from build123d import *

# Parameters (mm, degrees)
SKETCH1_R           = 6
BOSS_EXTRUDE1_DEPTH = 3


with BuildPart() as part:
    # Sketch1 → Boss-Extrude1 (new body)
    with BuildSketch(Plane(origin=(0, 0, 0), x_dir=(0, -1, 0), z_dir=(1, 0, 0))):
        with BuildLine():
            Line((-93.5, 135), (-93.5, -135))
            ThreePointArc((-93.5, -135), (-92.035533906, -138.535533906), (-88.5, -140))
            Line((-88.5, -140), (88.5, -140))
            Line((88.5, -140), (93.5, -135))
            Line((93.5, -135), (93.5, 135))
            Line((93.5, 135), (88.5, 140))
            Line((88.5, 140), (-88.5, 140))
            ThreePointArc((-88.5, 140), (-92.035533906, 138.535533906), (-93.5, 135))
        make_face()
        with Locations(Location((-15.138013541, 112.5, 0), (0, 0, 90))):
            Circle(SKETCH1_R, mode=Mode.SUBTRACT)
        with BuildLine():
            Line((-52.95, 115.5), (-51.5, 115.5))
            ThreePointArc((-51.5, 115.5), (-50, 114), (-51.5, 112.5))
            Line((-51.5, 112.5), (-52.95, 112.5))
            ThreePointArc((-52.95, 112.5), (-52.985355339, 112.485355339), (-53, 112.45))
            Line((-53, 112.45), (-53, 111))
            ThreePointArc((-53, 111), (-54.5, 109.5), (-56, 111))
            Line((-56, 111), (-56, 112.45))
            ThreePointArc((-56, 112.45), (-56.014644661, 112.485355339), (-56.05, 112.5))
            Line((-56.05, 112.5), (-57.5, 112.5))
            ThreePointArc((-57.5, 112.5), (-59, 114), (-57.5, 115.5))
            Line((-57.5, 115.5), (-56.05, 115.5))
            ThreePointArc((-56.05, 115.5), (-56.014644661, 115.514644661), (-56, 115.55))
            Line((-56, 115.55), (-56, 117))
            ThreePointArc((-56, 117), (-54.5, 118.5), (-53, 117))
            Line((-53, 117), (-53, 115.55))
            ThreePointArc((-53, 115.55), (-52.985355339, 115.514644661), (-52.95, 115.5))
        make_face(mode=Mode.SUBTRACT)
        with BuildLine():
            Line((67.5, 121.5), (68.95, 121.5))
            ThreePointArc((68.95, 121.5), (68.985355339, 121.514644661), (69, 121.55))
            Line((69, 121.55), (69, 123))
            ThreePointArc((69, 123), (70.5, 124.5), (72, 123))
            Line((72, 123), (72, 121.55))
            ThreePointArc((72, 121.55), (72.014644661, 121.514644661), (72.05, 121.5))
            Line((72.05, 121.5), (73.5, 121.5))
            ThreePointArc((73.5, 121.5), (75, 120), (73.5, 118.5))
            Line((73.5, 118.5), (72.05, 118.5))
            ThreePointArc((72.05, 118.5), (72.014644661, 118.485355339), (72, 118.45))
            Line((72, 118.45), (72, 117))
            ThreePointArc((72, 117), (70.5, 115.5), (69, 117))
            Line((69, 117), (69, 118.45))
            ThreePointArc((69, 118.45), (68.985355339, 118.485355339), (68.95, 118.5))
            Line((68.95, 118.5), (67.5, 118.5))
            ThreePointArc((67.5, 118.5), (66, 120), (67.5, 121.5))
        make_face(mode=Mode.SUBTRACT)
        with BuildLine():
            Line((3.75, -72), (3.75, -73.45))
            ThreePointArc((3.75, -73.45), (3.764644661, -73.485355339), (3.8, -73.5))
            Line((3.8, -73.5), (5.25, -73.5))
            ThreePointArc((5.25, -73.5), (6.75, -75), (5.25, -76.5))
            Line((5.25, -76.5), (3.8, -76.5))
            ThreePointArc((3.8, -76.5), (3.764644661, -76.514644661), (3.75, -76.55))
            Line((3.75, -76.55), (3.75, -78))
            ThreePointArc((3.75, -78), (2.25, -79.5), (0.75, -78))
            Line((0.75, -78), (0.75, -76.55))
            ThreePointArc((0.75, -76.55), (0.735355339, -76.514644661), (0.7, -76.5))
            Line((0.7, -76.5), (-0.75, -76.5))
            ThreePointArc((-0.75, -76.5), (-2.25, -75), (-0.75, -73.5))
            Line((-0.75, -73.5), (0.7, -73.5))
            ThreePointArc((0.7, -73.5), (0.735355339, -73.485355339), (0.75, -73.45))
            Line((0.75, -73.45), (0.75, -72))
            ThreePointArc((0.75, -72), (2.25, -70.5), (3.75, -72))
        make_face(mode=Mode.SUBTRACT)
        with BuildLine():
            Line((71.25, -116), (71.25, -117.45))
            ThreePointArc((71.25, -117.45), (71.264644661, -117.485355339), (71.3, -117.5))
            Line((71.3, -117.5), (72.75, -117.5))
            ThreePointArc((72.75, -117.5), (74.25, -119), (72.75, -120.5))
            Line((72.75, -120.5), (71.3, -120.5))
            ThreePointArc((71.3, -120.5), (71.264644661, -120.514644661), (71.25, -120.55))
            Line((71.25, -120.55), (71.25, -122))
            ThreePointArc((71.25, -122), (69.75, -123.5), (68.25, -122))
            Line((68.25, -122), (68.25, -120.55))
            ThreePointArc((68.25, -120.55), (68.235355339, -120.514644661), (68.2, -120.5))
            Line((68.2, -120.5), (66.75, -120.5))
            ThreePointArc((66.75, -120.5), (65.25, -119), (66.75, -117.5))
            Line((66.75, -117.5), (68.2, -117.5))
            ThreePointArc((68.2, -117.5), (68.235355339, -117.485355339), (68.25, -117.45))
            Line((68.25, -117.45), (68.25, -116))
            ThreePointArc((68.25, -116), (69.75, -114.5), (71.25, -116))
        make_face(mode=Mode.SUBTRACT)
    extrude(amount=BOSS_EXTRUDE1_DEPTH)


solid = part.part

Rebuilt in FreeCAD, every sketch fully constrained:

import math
import FreeCAD as App
import Part
import Sketcher

V = App.Vector
Q = App.Units.Quantity

doc = App.newDocument("Part")
params = doc.addObject("Spreadsheet::Sheet", "Params")
for row, (alias, value) in enumerate([
    ("sketch1_diameter", "12 mm"),
    ("sketch1_radius", "5 mm"),
    ("sketch1_radius2", "1.5 mm"),
    ("sketch1_width", "177 mm"),
    ("sketch1_height", "270 mm"),
    ("pad1_length", "3 mm"),
], start=1):
    params.set(f"A{row}", alias)
    params.set(f"B{row}", "=" + value)
    params.setAlias(f"B{row}", alias)

body = doc.addObject("PartDesign::Body", "Body")

# Sketch on YZ plane
sketch1 = body.newObject("Sketcher::SketchObject", "Sketch")
sketch1.AttachmentSupport = (doc.getObject("YZ_Plane"), [""])
sketch1.MapMode = "FlatFace"
sketch1.addGeometry([
    Part.LineSegment(V(93.5, -135, 0), V(93.5, 135, 0)),  # 0
    Part.ArcOfCircle(Part.Circle(V(88.5, 135, 0), V(0, 0, 1), 5), math.radians(0), math.radians(90)),  # 1
    Part.LineSegment(V(88.5, 140, 0), V(-88.5, 140, 0)),  # 2
    Part.LineSegment(V(-88.5, 140, 0), V(-93.5, 135, 0)),  # 3
    Part.LineSegment(V(-93.5, 135, 0), V(-93.5, -135, 0)),  # 4
    Part.LineSegment(V(-93.5, -135, 0), V(-88.5, -140, 0)),  # 5
    Part.LineSegment(V(-88.5, -140, 0), V(88.5, -140, 0)),  # 6
    Part.ArcOfCircle(Part.Circle(V(88.5, -135, 0), V(0, 0, 1), 5), math.radians(-90), math.radians(0)),  # 7
    Part.ArcOfCircle(Part.Circle(V(-2.25, 72, 0), V(0, 0, 1), 1.5), math.radians(180), math.radians(360)),  # 8
    Part.LineSegment(V(-3.75, 72, 0), V(-3.75, 73.45, 0)),  # 9
    Part.ArcOfCircle(Part.Circle(V(-3.8, 73.45, 0), V(0, 0, 1), 0.05), math.radians(0), math.radians(90)),  # 10
    Part.LineSegment(V(-3.8, 73.5, 0), V(-5.25, 73.5, 0)),  # 11
    Part.ArcOfCircle(Part.Circle(V(-5.25, 75, 0), V(0, 0, 1), 1.5), math.radians(90), math.radians(270)),  # 12
    Part.LineSegment(V(-5.25, 76.5, 0), V(-3.8, 76.5, 0)),  # 13
    Part.ArcOfCircle(Part.Circle(V(-3.8, 76.55, 0), V(0, 0, 1), 0.05), math.radians(-90), math.radians(0)),  # 14
    Part.LineSegment(V(-3.75, 76.55, 0), V(-3.75, 78, 0)),  # 15
    Part.ArcOfCircle(Part.Circle(V(-2.25, 78, 0), V(0, 0, 1), 1.5), math.radians(0), math.radians(180)),  # 16
    Part.LineSegment(V(-0.75, 78, 0), V(-0.75, 76.55, 0)),  # 17
    Part.ArcOfCircle(Part.Circle(V(-0.7, 76.55, 0), V(0, 0, 1), 0.05), math.radians(180), math.radians(270)),  # 18
    Part.LineSegment(V(-0.7, 76.5, 0), V(0.75, 76.5, 0)),  # 19
    Part.ArcOfCircle(Part.Circle(V(0.75, 75, 0), V(0, 0, 1), 1.5), math.radians(-90), math.radians(90)),  # 20
    Part.LineSegment(V(0.75, 73.5, 0), V(-0.7, 73.5, 0)),  # 21
    Part.ArcOfCircle(Part.Circle(V(-0.7, 73.45, 0), V(0, 0, 1), 0.05), math.radians(90), math.radians(180)),  # 22
    Part.LineSegment(V(-0.75, 73.45, 0), V(-0.75, 72, 0)),  # 23
    Part.ArcOfCircle(Part.Circle(V(-69.75, 116, 0), V(0, 0, 1), 1.5), math.radians(180), math.radians(360)),  # 24
    Part.LineSegment(V(-71.25, 116, 0), V(-71.25, 117.45, 0)),  # 25
    Part.ArcOfCircle(Part.Circle(V(-71.3, 117.45, 0), V(0, 0, 1), 0.05), math.radians(0), math.radians(90)),  # 26
    Part.LineSegment(V(-71.3, 117.5, 0), V(-72.75, 117.5, 0)),  # 27
    Part.ArcOfCircle(Part.Circle(V(-72.75, 119, 0), V(0, 0, 1), 1.5), math.radians(90), math.radians(270)),  # 28
    Part.LineSegment(V(-72.75, 120.5, 0), V(-71.3, 120.5, 0)),  # 29
    Part.ArcOfCircle(Part.Circle(V(-71.3, 120.55, 0), V(0, 0, 1), 0.05), math.radians(-90), math.radians(0)),  # 30
    Part.LineSegment(V(-71.25, 120.55, 0), V(-71.25, 122, 0)),  # 31
    Part.ArcOfCircle(Part.Circle(V(-69.75, 122, 0), V(0, 0, 1), 1.5), math.radians(0), math.radians(180)),  # 32
    Part.LineSegment(V(-68.25, 122, 0), V(-68.25, 120.55, 0)),  # 33
    Part.ArcOfCircle(Part.Circle(V(-68.2, 120.55, 0), V(0, 0, 1), 0.05), math.radians(180), math.radians(270)),  # 34
    Part.LineSegment(V(-68.2, 120.5, 0), V(-66.75, 120.5, 0)),  # 35
    Part.ArcOfCircle(Part.Circle(V(-66.75, 119, 0), V(0, 0, 1), 1.5), math.radians(-90), math.radians(90)),  # 36
    Part.LineSegment(V(-66.75, 117.5, 0), V(-68.2, 117.5, 0)),  # 37
    Part.ArcOfCircle(Part.Circle(V(-68.2, 117.45, 0), V(0, 0, 1), 0.05), math.radians(90), math.radians(180)),  # 38
    Part.LineSegment(V(-68.25, 117.45, 0), V(-68.25, 116, 0)),  # 39
    Part.ArcOfCircle(Part.Circle(V(52.95, -115.55, 0), V(0, 0, 1), 0.05), math.radians(0), math.radians(90)),  # 40
    Part.LineSegment(V(52.95, -115.5, 0), V(51.5, -115.5, 0)),  # 41
    Part.ArcOfCircle(Part.Circle(V(51.5, -114, 0), V(0, 0, 1), 1.5), math.radians(90), math.radians(270)),  # 42
    Part.LineSegment(V(51.5, -112.5, 0), V(52.95, -112.5, 0)),  # 43
    Part.ArcOfCircle(Part.Circle(V(52.95, -112.45, 0), V(0, 0, 1), 0.05), math.radians(-90), math.radians(0)),  # 44
    Part.LineSegment(V(53, -112.45, 0), V(53, -111, 0)),  # 45
    Part.ArcOfCircle(Part.Circle(V(54.5, -111, 0), V(0, 0, 1), 1.5), math.radians(0), math.radians(180)),  # 46
    Part.LineSegment(V(56, -111, 0), V(56, -112.45, 0)),  # 47
    Part.ArcOfCircle(Part.Circle(V(56.05, -112.45, 0), V(0, 0, 1), 0.05), math.radians(180), math.radians(270)),  # 48
    Part.LineSegment(V(56.05, -112.5, 0), V(57.5, -112.5, 0)),  # 49
    Part.ArcOfCircle(Part.Circle(V(57.5, -114, 0), V(0, 0, 1), 1.5), math.radians(-90), math.radians(90)),  # 50
    Part.LineSegment(V(57.5, -115.5, 0), V(56.05, -115.5, 0)),  # 51
    Part.ArcOfCircle(Part.Circle(V(56.05, -115.55, 0), V(0, 0, 1), 0.05), math.radians(90), math.radians(180)),  # 52
    Part.LineSegment(V(56, -115.55, 0), V(56, -117, 0)),  # 53
    Part.ArcOfCircle(Part.Circle(V(54.5, -117, 0), V(0, 0, 1), 1.5), math.radians(180), math.radians(360)),  # 54
    Part.LineSegment(V(53, -117, 0), V(53, -115.55, 0)),  # 55
    Part.Circle(V(15.14, -112.5, 0), V(0, 0, 1), 6),  # 56
    Part.ArcOfCircle(Part.Circle(V(-67.5, -120, 0), V(0, 0, 1), 1.5), math.radians(-90), math.radians(90)),  # 57
    Part.LineSegment(V(-67.5, -121.5, 0), V(-68.95, -121.5, 0)),  # 58
    Part.ArcOfCircle(Part.Circle(V(-68.95, -121.55, 0), V(0, 0, 1), 0.05), math.radians(90), math.radians(180)),  # 59
    Part.LineSegment(V(-69, -121.55, 0), V(-69, -123, 0)),  # 60
    Part.ArcOfCircle(Part.Circle(V(-70.5, -123, 0), V(0, 0, 1), 1.5), math.radians(180), math.radians(360)),  # 61
    Part.LineSegment(V(-72, -123, 0), V(-72, -121.55, 0)),  # 62
    Part.ArcOfCircle(Part.Circle(V(-72.05, -121.55, 0), V(0, 0, 1), 0.05), math.radians(0), math.radians(90)),  # 63
    Part.LineSegment(V(-72.05, -121.5, 0), V(-73.5, -121.5, 0)),  # 64
    Part.ArcOfCircle(Part.Circle(V(-73.5, -120, 0), V(0, 0, 1), 1.5), math.radians(90), math.radians(270)),  # 65
    Part.LineSegment(V(-73.5, -118.5, 0), V(-72.05, -118.5, 0)),  # 66
    Part.ArcOfCircle(Part.Circle(V(-72.05, -118.45, 0), V(0, 0, 1), 0.05), math.radians(-90), math.radians(0)),  # 67
    Part.LineSegment(V(-72, -118.45, 0), V(-72, -117, 0)),  # 68
    Part.ArcOfCircle(Part.Circle(V(-70.5, -117, 0), V(0, 0, 1), 1.5), math.radians(0), math.radians(180)),  # 69
    Part.LineSegment(V(-69, -117, 0), V(-69, -118.45, 0)),  # 70
    Part.ArcOfCircle(Part.Circle(V(-68.95, -118.45, 0), V(0, 0, 1), 0.05), math.radians(180), math.radians(270)),  # 71
    Part.LineSegment(V(-68.95, -118.5, 0), V(-67.5, -118.5, 0)),  # 72
], False)
sketch1.addConstraint([
    Sketcher.Constraint("Tangent", 0, 2, 1, 1),
    Sketcher.Constraint("Tangent", 1, 2, 2, 1),
    Sketcher.Constraint("Coincident", 2, 2, 3, 1),
    Sketcher.Constraint("Coincident", 3, 2, 4, 1),
    Sketcher.Constraint("Coincident", 4, 2, 5, 1),
    Sketcher.Constraint("Coincident", 5, 2, 6, 1),
    Sketcher.Constraint("Tangent", 6, 2, 7, 1),
    Sketcher.Constraint("Tangent", 7, 2, 0, 1),
    Sketcher.Constraint("Tangent", 8, 1, 9, 1),
    Sketcher.Constraint("Tangent", 9, 2, 10, 1),
    Sketcher.Constraint("Tangent", 10, 2, 11, 1),
    Sketcher.Constraint("Tangent", 11, 2, 12, 2),
    Sketcher.Constraint("Tangent", 12, 1, 13, 1),
    Sketcher.Constraint("Tangent", 13, 2, 14, 1),
    Sketcher.Constraint("Tangent", 14, 2, 15, 1),
    Sketcher.Constraint("Tangent", 15, 2, 16, 2),
    Sketcher.Constraint("Tangent", 16, 1, 17, 1),
    Sketcher.Constraint("Tangent", 17, 2, 18, 1),
    Sketcher.Constraint("Tangent", 18, 2, 19, 1),
    Sketcher.Constraint("Tangent", 19, 2, 20, 2),
    Sketcher.Constraint("Tangent", 20, 1, 21, 1),
    Sketcher.Constraint("Tangent", 21, 2, 22, 1),
    Sketcher.Constraint("Tangent", 22, 2, 23, 1),
    Sketcher.Constraint("Tangent", 23, 2, 8, 2),
    Sketcher.Constraint("Tangent", 24, 1, 25, 1),
    Sketcher.Constraint("Tangent", 25, 2, 26, 1),
    Sketcher.Constraint("Tangent", 26, 2, 27, 1),
    Sketcher.Constraint("Tangent", 27, 2, 28, 2),
    Sketcher.Constraint("Tangent", 28, 1, 29, 1),
    Sketcher.Constraint("Tangent", 29, 2, 30, 1),
    Sketcher.Constraint("Tangent", 30, 2, 31, 1),
    Sketcher.Constraint("Tangent", 31, 2, 32, 2),
    Sketcher.Constraint("Tangent", 32, 1, 33, 1),
    Sketcher.Constraint("Tangent", 33, 2, 34, 1),
    Sketcher.Constraint("Tangent", 34, 2, 35, 1),
    Sketcher.Constraint("Tangent", 35, 2, 36, 2),
    Sketcher.Constraint("Tangent", 36, 1, 37, 1),
    Sketcher.Constraint("Tangent", 37, 2, 38, 1),
    Sketcher.Constraint("Tangent", 38, 2, 39, 1),
    Sketcher.Constraint("Tangent", 39, 2, 24, 2),
    Sketcher.Constraint("Tangent", 40, 2, 41, 1),
    Sketcher.Constraint("Tangent", 41, 2, 42, 2),
    Sketcher.Constraint("Tangent", 42, 1, 43, 1),
    Sketcher.Constraint("Tangent", 43, 2, 44, 1),
    Sketcher.Constraint("Tangent", 44, 2, 45, 1),
    Sketcher.Constraint("Tangent", 45, 2, 46, 2),
    Sketcher.Constraint("Tangent", 46, 1, 47, 1),
    Sketcher.Constraint("Tangent", 47, 2, 48, 1),
    Sketcher.Constraint("Tangent", 48, 2, 49, 1),
    Sketcher.Constraint("Tangent", 49, 2, 50, 2),
    Sketcher.Constraint("Tangent", 50, 1, 51, 1),
    Sketcher.Constraint("Tangent", 51, 2, 52, 1),
    Sketcher.Constraint("Tangent", 52, 2, 53, 1),
    Sketcher.Constraint("Tangent", 53, 2, 54, 2),
    Sketcher.Constraint("Tangent", 54, 1, 55, 1),
    Sketcher.Constraint("Tangent", 55, 2, 40, 1),
    Sketcher.Constraint("Tangent", 57, 1, 58, 1),
    Sketcher.Constraint("Tangent", 58, 2, 59, 1),
    Sketcher.Constraint("Tangent", 59, 2, 60, 1),
    Sketcher.Constraint("Tangent", 60, 2, 61, 2),
    Sketcher.Constraint("Tangent", 61, 1, 62, 1),
    Sketcher.Constraint("Tangent", 62, 2, 63, 1),
    Sketcher.Constraint("Tangent", 63, 2, 64, 1),
    Sketcher.Constraint("Tangent", 64, 2, 65, 2),
    Sketcher.Constraint("Tangent", 65, 1, 66, 1),
    Sketcher.Constraint("Tangent", 66, 2, 67, 1),
    Sketcher.Constraint("Tangent", 67, 2, 68, 1),
    Sketcher.Constraint("Tangent", 68, 2, 69, 2),
    Sketcher.Constraint("Tangent", 69, 1, 70, 1),
    Sketcher.Constraint("Tangent", 70, 2, 71, 1),
    Sketcher.Constraint("Tangent", 71, 2, 72, 1),
    Sketcher.Constraint("Tangent", 72, 2, 57, 2),
    Sketcher.Constraint("Vertical", 0),
    Sketcher.Constraint("Horizontal", 2),
    Sketcher.Constraint("Vertical", 4),
    Sketcher.Constraint("Horizontal", 6),
    Sketcher.Constraint("Vertical", 9),
    Sketcher.Constraint("Horizontal", 11),
    Sketcher.Constraint("Horizontal", 13),
    Sketcher.Constraint("Vertical", 15),
    Sketcher.Constraint("Vertical", 17),
    Sketcher.Constraint("Horizontal", 19),
    Sketcher.Constraint("Horizontal", 21),
    Sketcher.Constraint("Vertical", 23),
    Sketcher.Constraint("Vertical", 25),
    Sketcher.Constraint("Horizontal", 27),
    Sketcher.Constraint("Horizontal", 29),
    Sketcher.Constraint("Vertical", 31),
    Sketcher.Constraint("Vertical", 33),
    Sketcher.Constraint("Horizontal", 35),
    Sketcher.Constraint("Horizontal", 37),
    Sketcher.Constraint("Vertical", 39),
    Sketcher.Constraint("Horizontal", 41),
    Sketcher.Constraint("Horizontal", 43),
    Sketcher.Constraint("Vertical", 45),
    Sketcher.Constraint("Vertical", 47),
    Sketcher.Constraint("Horizontal", 49),
    Sketcher.Constraint("Horizontal", 51),
    Sketcher.Constraint("Vertical", 53),
    Sketcher.Constraint("Vertical", 55),
    Sketcher.Constraint("Horizontal", 58),
    Sketcher.Constraint("Vertical", 60),
    Sketcher.Constraint("Vertical", 62),
    Sketcher.Constraint("Horizontal", 64),
    Sketcher.Constraint("Horizontal", 66),
    Sketcher.Constraint("Vertical", 68),
    Sketcher.Constraint("Vertical", 70),
    Sketcher.Constraint("Horizontal", 72),
    Sketcher.Constraint("Equal", 1, 7),
    Sketcher.Constraint("Equal", 8, 12),
    Sketcher.Constraint("Equal", 10, 14),
    Sketcher.Constraint("Equal", 12, 16),
    Sketcher.Constraint("Equal", 14, 18),
    Sketcher.Constraint("Equal", 16, 20),
    Sketcher.Constraint("Equal", 18, 22),
    Sketcher.Constraint("Equal", 20, 24),
    Sketcher.Constraint("Equal", 22, 26),
    Sketcher.Constraint("Equal", 24, 28),
    Sketcher.Constraint("Equal", 26, 30),
    Sketcher.Constraint("Equal", 28, 32),
    Sketcher.Constraint("Equal", 30, 34),
    Sketcher.Constraint("Equal", 32, 36),
    Sketcher.Constraint("Equal", 34, 38),
    Sketcher.Constraint("Equal", 38, 40),
    Sketcher.Constraint("Equal", 36, 42),
    Sketcher.Constraint("Equal", 40, 44),
    Sketcher.Constraint("Equal", 42, 46),
    Sketcher.Constraint("Equal", 44, 48),
    Sketcher.Constraint("Equal", 46, 50),
    Sketcher.Constraint("Equal", 48, 52),
    Sketcher.Constraint("Equal", 50, 54),
    Sketcher.Constraint("Equal", 54, 57),
    Sketcher.Constraint("Equal", 52, 59),
    Sketcher.Constraint("Equal", 57, 61),
    Sketcher.Constraint("Equal", 59, 63),
    Sketcher.Constraint("Equal", 61, 65),
    Sketcher.Constraint("Equal", 63, 67),
    Sketcher.Constraint("Equal", 65, 69),
    Sketcher.Constraint("Equal", 67, 71),
    Sketcher.Constraint("Symmetric", 0, 2, 4, 2, -1, 1),
    Sketcher.Constraint("Symmetric", 1, 2, 5, 2, -1, 1),
    Sketcher.Constraint("Perpendicular", 3, 5),
    Sketcher.Constraint("Horizontal", 14, 3, 18, 3),
    Sketcher.Constraint("Horizontal", 30, 3, 34, 3),
    Sketcher.Constraint("Horizontal", 44, 3, 48, 3),
    Sketcher.Constraint("Horizontal", 59, 3, 63, 3),
    Sketcher.Constraint("Horizontal", 54, 3, 69, 3),
    Sketcher.Constraint("Horizontal", 0, 2, 3, 2),
    Sketcher.Constraint("Horizontal", 56, 3, 42, 1),
    Sketcher.Constraint("Vertical", 10, 3, 14, 3),
    Sketcher.Constraint("Vertical", 26, 3, 30, 3),
    Sketcher.Constraint("Vertical", 40, 3, 44, 3),
    Sketcher.Constraint("Vertical", 63, 3, 67, 3),
    Sketcher.Constraint("Equal", 13, 19),
    Sketcher.Constraint("Equal", 21, 27),
    Sketcher.Constraint("Equal", 29, 35),
    Sketcher.Constraint("Equal", 37, 41),
    Sketcher.Constraint("Equal", 43, 49),
    Sketcher.Constraint("Equal", 51, 58),
    Sketcher.Constraint("Equal", 58, 64),
    Sketcher.Constraint("Equal", 72, 9),
    Sketcher.Constraint("Equal", 9, 15),
    Sketcher.Constraint("Equal", 23, 25),
    Sketcher.Constraint("Equal", 25, 31),
    Sketcher.Constraint("Equal", 39, 45),
    Sketcher.Constraint("Equal", 47, 53),
    Sketcher.Constraint("Equal", 55, 60),
    Sketcher.Constraint("Equal", 62, 68),
    Sketcher.Constraint("Diameter", 56, Q("12 mm")),
    Sketcher.Constraint("Radius", 1, Q("5 mm")),
    Sketcher.Constraint("Radius", 8, Q("1.5 mm")),
    Sketcher.Constraint("DistanceX", 2, 2, 2, 1, Q("177 mm")),
    Sketcher.Constraint("DistanceY", 0, 1, 0, 2, Q("270 mm")),
    Sketcher.Constraint("Radius", 10, Q("0.05 mm")),
    Sketcher.Constraint("DistanceY", -1, 1, 8, 3, Q("72 mm")),
    Sketcher.Constraint("DistanceY", -1, 1, 12, 3, Q("75 mm")),
    Sketcher.Constraint("DistanceY", -1, 1, 24, 3, Q("116 mm")),
    Sketcher.Constraint("DistanceY", 42, 3, -1, 1, Q("114 mm")),
    Sketcher.Constraint("DistanceX", -1, 1, 44, 2, Q("53 mm")),
    Sketcher.Constraint("DistanceX", 59, 2, -1, 1, Q("69 mm")),
    Sketcher.Constraint("DistanceX", 10, 3, -1, 1, Q("3.8 mm")),
    Sketcher.Constraint("DistanceX", 26, 3, -1, 1, Q("71.3 mm")),
    Sketcher.Constraint("DistanceX", -1, 1, 56, 3, Q("15.138014 mm")),
])
sketch1.setExpression("Constraints[168]", "Params.sketch1_diameter")
sketch1.setExpression("Constraints[169]", "Params.sketch1_radius")
sketch1.setExpression("Constraints[170]", "Params.sketch1_radius2")
sketch1.setExpression("Constraints[171]", "Params.sketch1_width")
sketch1.setExpression("Constraints[172]", "Params.sketch1_height")
pad1 = body.newObject("PartDesign::Pad", "Pad")
pad1.Profile = sketch1
pad1.setExpression("Length", "Params.pad1_length")

doc.recompute()
